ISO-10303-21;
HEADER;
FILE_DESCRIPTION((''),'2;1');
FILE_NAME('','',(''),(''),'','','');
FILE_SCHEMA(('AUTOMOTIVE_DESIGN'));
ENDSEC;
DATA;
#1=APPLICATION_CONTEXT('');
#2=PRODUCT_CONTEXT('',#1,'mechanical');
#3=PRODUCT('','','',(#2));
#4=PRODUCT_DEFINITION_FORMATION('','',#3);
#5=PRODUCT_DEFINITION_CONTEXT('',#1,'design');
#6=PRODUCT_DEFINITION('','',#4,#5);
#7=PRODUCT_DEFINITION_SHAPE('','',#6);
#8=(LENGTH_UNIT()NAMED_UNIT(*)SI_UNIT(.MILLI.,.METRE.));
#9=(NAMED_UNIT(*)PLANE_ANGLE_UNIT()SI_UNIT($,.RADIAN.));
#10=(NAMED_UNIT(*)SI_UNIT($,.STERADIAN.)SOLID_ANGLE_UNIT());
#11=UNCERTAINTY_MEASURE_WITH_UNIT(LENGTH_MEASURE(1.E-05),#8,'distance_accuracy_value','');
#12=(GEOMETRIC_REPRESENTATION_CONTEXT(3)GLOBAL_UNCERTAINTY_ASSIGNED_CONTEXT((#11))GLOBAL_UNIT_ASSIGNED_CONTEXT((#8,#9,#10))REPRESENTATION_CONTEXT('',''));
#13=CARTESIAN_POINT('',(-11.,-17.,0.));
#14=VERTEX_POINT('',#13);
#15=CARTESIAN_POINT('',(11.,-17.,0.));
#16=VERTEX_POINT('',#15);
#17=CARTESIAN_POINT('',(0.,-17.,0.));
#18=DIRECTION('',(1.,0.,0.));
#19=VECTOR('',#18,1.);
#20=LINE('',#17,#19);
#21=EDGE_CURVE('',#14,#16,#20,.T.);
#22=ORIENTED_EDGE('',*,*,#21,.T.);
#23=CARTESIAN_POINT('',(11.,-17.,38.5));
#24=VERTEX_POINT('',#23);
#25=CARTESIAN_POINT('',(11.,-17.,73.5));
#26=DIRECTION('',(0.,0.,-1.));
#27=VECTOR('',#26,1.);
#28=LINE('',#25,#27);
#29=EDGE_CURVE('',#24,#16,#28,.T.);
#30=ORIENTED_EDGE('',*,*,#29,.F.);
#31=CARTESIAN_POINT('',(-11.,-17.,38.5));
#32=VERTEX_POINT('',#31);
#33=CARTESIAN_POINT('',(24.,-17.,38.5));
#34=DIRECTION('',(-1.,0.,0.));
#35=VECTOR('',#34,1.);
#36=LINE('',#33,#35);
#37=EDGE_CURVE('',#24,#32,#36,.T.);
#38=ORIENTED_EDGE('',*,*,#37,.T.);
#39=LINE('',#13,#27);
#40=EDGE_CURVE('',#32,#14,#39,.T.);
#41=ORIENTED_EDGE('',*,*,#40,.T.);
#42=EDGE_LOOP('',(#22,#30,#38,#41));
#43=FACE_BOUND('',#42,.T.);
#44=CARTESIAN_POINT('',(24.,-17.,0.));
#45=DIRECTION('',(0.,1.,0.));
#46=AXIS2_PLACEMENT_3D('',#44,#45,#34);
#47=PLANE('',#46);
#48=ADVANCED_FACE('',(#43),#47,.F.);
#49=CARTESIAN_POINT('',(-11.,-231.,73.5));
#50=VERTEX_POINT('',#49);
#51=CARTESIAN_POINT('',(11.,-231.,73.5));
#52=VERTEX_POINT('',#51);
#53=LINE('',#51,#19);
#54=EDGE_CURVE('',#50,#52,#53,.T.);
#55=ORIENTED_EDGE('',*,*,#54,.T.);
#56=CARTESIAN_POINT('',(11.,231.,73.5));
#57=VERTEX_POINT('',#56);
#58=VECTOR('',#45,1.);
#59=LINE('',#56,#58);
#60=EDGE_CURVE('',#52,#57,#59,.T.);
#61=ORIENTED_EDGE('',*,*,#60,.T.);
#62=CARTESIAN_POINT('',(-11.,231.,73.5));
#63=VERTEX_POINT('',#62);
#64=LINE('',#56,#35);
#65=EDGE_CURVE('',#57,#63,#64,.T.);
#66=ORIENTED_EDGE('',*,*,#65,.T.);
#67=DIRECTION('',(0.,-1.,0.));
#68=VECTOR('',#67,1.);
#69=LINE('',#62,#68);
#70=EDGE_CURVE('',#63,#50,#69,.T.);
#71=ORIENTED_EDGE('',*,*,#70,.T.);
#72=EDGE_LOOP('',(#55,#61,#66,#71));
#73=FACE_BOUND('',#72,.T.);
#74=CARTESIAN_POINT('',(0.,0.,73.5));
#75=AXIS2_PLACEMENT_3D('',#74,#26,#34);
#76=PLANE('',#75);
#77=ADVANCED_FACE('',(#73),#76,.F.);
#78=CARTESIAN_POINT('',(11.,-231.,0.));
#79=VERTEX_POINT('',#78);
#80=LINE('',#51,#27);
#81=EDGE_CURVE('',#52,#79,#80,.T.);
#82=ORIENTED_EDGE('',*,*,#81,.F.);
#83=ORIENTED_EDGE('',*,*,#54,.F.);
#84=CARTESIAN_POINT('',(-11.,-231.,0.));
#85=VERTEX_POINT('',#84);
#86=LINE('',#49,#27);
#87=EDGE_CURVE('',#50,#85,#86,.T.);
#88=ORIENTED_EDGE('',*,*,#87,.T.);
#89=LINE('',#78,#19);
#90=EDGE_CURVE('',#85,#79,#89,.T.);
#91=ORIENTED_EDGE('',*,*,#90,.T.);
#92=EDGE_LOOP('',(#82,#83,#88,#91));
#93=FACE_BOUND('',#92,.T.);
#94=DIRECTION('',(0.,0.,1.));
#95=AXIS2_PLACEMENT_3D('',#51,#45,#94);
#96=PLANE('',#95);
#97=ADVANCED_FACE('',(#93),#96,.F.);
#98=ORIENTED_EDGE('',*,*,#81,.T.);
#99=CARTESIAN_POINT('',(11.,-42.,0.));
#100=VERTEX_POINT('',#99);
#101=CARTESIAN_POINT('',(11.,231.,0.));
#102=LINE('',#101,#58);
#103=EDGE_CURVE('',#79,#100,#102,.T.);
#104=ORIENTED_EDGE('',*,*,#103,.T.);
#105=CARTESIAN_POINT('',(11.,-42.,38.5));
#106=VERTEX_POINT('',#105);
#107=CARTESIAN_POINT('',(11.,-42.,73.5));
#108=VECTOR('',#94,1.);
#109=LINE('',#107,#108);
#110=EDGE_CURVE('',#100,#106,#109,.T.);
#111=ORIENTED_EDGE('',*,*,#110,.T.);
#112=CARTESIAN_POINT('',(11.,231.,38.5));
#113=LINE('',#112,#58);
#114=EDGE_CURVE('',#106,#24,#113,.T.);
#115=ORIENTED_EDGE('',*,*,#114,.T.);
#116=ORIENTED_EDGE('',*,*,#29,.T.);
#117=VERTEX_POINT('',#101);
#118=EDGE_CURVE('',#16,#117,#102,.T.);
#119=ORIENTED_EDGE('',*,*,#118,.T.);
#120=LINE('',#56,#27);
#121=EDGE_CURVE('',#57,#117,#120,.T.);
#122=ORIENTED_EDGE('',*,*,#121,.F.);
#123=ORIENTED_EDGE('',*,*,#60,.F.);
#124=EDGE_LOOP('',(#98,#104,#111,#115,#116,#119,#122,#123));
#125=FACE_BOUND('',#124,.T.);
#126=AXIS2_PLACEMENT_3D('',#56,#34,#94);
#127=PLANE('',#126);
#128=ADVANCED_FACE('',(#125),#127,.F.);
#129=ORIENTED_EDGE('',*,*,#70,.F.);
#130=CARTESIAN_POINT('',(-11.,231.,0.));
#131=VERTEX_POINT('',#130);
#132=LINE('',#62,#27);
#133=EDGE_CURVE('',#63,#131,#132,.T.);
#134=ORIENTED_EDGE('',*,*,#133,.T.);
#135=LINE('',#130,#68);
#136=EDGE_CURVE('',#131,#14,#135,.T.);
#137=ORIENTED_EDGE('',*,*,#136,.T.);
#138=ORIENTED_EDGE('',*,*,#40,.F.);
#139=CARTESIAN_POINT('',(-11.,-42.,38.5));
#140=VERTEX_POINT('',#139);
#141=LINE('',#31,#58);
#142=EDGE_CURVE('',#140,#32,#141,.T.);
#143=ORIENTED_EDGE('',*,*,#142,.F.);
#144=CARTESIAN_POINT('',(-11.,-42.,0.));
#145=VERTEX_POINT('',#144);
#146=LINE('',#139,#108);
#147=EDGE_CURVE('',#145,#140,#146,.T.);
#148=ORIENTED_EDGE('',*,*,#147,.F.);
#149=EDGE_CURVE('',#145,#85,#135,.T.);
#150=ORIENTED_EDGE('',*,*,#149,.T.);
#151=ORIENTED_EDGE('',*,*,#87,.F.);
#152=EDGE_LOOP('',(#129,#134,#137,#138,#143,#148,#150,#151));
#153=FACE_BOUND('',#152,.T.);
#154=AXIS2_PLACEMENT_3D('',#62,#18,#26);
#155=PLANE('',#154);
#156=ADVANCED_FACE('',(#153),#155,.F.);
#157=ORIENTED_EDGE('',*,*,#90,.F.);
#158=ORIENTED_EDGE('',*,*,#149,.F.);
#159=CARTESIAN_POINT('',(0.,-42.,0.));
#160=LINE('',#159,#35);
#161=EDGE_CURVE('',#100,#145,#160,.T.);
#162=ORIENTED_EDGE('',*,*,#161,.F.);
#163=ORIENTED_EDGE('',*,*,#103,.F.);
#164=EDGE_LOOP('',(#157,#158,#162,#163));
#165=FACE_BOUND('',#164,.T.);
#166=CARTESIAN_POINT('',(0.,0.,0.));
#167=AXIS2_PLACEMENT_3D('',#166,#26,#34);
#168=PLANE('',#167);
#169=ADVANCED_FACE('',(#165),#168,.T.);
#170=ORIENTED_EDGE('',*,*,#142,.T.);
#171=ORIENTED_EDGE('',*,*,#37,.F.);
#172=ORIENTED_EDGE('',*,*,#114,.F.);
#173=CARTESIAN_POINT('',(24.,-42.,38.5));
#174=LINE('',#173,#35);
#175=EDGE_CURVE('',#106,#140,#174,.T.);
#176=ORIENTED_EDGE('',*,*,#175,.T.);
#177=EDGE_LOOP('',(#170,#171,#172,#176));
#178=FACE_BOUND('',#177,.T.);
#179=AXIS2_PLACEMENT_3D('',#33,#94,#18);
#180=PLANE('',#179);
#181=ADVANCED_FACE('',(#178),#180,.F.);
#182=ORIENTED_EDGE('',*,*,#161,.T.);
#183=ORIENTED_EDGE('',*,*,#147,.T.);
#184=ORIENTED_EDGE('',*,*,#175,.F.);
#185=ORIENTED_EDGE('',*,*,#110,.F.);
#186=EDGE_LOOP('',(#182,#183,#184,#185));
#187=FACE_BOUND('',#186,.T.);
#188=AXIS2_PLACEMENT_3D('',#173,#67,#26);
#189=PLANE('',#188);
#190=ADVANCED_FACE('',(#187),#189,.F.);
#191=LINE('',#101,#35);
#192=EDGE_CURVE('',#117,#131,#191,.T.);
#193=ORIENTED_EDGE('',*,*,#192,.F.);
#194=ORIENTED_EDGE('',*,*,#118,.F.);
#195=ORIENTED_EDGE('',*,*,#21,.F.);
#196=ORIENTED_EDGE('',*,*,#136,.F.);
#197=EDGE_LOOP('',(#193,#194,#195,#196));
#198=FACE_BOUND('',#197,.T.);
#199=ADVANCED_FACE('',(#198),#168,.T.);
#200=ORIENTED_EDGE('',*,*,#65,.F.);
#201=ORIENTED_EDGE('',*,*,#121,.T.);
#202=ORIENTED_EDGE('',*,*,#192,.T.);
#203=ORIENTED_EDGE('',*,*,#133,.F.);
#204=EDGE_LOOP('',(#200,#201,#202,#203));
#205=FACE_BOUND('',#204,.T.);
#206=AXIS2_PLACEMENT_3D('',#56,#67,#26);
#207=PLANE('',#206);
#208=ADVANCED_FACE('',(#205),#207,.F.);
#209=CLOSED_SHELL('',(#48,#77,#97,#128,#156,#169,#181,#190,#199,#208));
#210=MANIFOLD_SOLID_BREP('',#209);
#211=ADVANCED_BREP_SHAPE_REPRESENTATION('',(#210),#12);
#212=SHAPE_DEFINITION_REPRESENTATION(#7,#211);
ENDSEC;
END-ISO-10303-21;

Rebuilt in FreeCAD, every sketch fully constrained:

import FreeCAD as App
import Part
import Sketcher
Q = App.Units.Quantity

doc = App.newDocument("Part")
body = doc.addObject("PartDesign::Body", "Body")

sketch1 = body.newObject("Sketcher::SketchObject", "Sketch")
sketch1.AttachmentSupport = (doc.getObject("XY_Plane"), [""])
sketch1.MapMode = "FlatFace"
sketch1.addGeometry([
    Part.LineSegment(App.Vector(-11, 231, 0), App.Vector(-11, -231, 0)),
    Part.LineSegment(App.Vector(-11, -231, 0), App.Vector(11, -231, 0)),
    Part.LineSegment(App.Vector(11, -231, 0), App.Vector(11, 231, 0)),
    Part.LineSegment(App.Vector(11, 231, 0), App.Vector(-11, 231, 0)),
], False)
sketch1.addConstraint([
    Sketcher.Constraint("Coincident", 0, 2, 1, 1),
    Sketcher.Constraint("Coincident", 1, 2, 2, 1),
    Sketcher.Constraint("Coincident", 2, 2, 3, 1),
    Sketcher.Constraint("Coincident", 3, 2, 0, 1),
    Sketcher.Constraint("Vertical", 0),
    Sketcher.Constraint("Horizontal", 1),
    Sketcher.Constraint("Vertical", 2),
    Sketcher.Constraint("Horizontal", 3),
    Sketcher.Constraint("Symmetric", 0, 2, 2, 2, -1, 1),
    Sketcher.Constraint("DistanceX", 1, 1, 1, 2, Q("22 mm")),
    Sketcher.Constraint("DistanceY", 0, 2, 0, 1, Q("462 mm")),
])
pad1 = body.newObject("PartDesign::Pad", "Pad")
pad1.Profile = sketch1
pad1.Length = 73.5

sketch2 = body.newObject("Sketcher::SketchObject", "Sketch001")
sketch2.AttachmentSupport = (doc.getObject("YZ_Plane"), [""])
sketch2.MapMode = "FlatFace"
sketch2.AttachmentOffset = App.Placement(App.Vector(0, 0, -11), App.Rotation())
sketch2.addGeometry([
    Part.LineSegment(App.Vector(-17, 0, 0), App.Vector(-42, 0, 0)),
    Part.LineSegment(App.Vector(-42, 0, 0), App.Vector(-42, 38, 0)),
    Part.LineSegment(App.Vector(-42, 38, 0), App.Vector(-17, 38, 0)),
    Part.LineSegment(App.Vector(-17, 38, 0), App.Vector(-17, 0, 0)),
], False)
sketch2.addConstraint([
    Sketcher.Constraint("Coincident", 0, 2, 1, 1),
    Sketcher.Constraint("Coincident", 1, 2, 2, 1),
    Sketcher.Constraint("Coincident", 2, 2, 3, 1),
    Sketcher.Constraint("Coincident", 3, 2, 0, 1),
    Sketcher.Constraint("Horizontal", 0),
    Sketcher.Constraint("Vertical", 1),
    Sketcher.Constraint("Horizontal", 2),
    Sketcher.Constraint("Vertical", 3),
    Sketcher.Constraint("PointOnObject", 0, 2, -1),
    Sketcher.Constraint("DistanceX", 0, 2, 0, 1, Q("25 mm")),
    Sketcher.Constraint("DistanceY", 1, 1, 1, 2, Q("38.5 mm")),
    Sketcher.Constraint("DistanceX", 0, 2, -1, 1, Q("42 mm")),
])
pocket1 = body.newObject("PartDesign::Pocket", "Pocket")
pocket1.Profile = sketch2
pocket1.Length = 35
pocket1.Reversed = True

doc.recompute()
